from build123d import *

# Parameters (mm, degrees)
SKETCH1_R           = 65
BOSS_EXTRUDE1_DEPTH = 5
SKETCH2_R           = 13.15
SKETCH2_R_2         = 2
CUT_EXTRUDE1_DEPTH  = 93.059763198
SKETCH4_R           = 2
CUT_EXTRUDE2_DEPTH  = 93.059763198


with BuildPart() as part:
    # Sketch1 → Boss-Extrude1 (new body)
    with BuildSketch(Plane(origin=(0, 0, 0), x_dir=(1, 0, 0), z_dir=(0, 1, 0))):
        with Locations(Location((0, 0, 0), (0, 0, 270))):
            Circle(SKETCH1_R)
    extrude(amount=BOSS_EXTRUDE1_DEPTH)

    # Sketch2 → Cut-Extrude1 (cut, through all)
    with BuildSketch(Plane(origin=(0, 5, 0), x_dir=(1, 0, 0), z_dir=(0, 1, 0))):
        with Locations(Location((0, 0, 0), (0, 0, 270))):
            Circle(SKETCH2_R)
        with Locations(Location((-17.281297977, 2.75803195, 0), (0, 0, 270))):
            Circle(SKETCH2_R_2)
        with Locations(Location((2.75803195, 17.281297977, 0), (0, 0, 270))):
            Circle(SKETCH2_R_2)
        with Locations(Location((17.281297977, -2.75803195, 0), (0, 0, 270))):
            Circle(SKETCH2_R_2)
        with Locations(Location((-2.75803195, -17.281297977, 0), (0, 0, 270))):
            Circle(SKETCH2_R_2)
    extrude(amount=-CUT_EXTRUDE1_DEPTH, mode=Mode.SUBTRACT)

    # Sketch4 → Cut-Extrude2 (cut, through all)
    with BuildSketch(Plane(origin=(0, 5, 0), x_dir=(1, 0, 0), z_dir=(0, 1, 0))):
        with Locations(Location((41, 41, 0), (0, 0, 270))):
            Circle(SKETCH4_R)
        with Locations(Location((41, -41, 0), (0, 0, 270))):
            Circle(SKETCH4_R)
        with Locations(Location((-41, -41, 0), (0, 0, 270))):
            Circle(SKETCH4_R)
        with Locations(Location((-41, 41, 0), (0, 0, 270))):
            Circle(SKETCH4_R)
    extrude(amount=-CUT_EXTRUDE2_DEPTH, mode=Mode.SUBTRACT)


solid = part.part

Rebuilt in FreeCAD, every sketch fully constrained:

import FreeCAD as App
import Part
import Sketcher

V = App.Vector

doc = App.newDocument("Part")
body = doc.addObject("PartDesign::Body", "Body")

# Sketch on XZ plane
sketch1 = body.newObject("Sketcher::SketchObject", "Sketch")
sketch1.AttachmentSupport = (doc.getObject("XZ_Plane"), [""])
sketch1.MapMode = "FlatFace"
sketch1.addGeometry(Part.Circle(V(0, 0, 0), V(0, 0, 1), 65), False)
sketch1.addConstraint([
    Sketcher.Constraint("Coincident", 0, 3, -1, 1),
    Sketcher.Constraint("Diameter", 0, 130.0),
])
pad1 = body.newObject("PartDesign::Pad", "Pad")
pad1.Profile = sketch1
pad1.Length = 5
pad1.Reversed = True

# Sketch on XZ plane
sketch2 = body.newObject("Sketcher::SketchObject", "Sketch001")
sketch2.AttachmentSupport = (doc.getObject("XZ_Plane"), [""])
sketch2.MapMode = "FlatFace"
sketch2.AttachmentOffset = App.Placement(V(0, 0, -5), App.Rotation())
sketch2.addGeometry([
    Part.Circle(V(0, 0, 0), V(0, 0, 1), 13.2),  # 0
    Part.Circle(V(-17.3, -2.8, 0), V(0, 0, 1), 2),  # 1
    Part.Circle(V(2.8, -17.3, 0), V(0, 0, 1), 2),  # 2
    Part.Circle(V(17.3, 2.8, 0), V(0, 0, 1), 2),  # 3
    Part.Circle(V(-2.8, 17.3, 0), V(0, 0, 1), 2),  # 4
], False)
sketch2.addConstraint([
    Sketcher.Constraint("Coincident", 0, 3, -1, 1),
    Sketcher.Constraint("Equal", 1, 2),
    Sketcher.Constraint("Equal", 2, 3),
    Sketcher.Constraint("Equal", 3, 4),
    Sketcher.Constraint("Symmetric", 1, 3, 3, 3, -1, 1),
    Sketcher.Constraint("Symmetric", 2, 3, 4, 3, -1, 1),
    Sketcher.Constraint("Diameter", 1, 4.0),
    Sketcher.Constraint("Diameter", 0, 26.3),
    Sketcher.Constraint("DistanceY", 1, 3, -1, 1, 2.758032),
    Sketcher.Constraint("DistanceX", -1, 1, 2, 3, 2.758032),
    Sketcher.Constraint("DistanceX", 1, 3, 2, 3, 20.03933),
    Sketcher.Constraint("DistanceY", 2, 3, 3, 3, 20.03933),
])
pocket1 = body.newObject("PartDesign::Pocket", "Pocket")
pocket1.Profile = sketch2
pocket1.Type = "ThroughAll"
pocket1.Reversed = True

# Sketch on XZ plane
sketch3 = body.newObject("Sketcher::SketchObject", "Sketch002")
sketch3.AttachmentSupport = (doc.getObject("XZ_Plane"), [""])
sketch3.MapMode = "FlatFace"
sketch3.AttachmentOffset = App.Placement(V(0, 0, -5), App.Rotation())
sketch3.addGeometry([
    Part.Circle(V(41, -41, 0), V(0, 0, 1), 2),
    Part.Circle(V(41, 41, 0), V(0, 0, 1), 2),
    Part.Circle(V(-41, 41, 0), V(0, 0, 1), 2),
    Part.Circle(V(-41, -41, 0), V(0, 0, 1), 2),
], False)
sketch3.addConstraint([
    Sketcher.Constraint("Equal", 0, 1),
    Sketcher.Constraint("Equal", 1, 2),
    Sketcher.Constraint("Equal", 2, 3),
    Sketcher.Constraint("Symmetric", 0, 3, 2, 3, -1, 1),
    Sketcher.Constraint("Symmetric", 1, 3, 3, 3, -1, 1),
    Sketcher.Constraint("Symmetric", 1, 3, 2, 3, -2),
    Sketcher.Constraint("Diameter", 0, 4.0),
    Sketcher.Constraint("DistanceX", -1, 1, 0, 3, 41.0),
    Sketcher.Constraint("DistanceY", 0, 3, -1, 1, 41.0),
])
pocket2 = body.newObject("PartDesign::Pocket", "Pocket001")
pocket2.Profile = sketch3
pocket2.Type = "ThroughAll"
pocket2.Reversed = True

doc.recompute()
